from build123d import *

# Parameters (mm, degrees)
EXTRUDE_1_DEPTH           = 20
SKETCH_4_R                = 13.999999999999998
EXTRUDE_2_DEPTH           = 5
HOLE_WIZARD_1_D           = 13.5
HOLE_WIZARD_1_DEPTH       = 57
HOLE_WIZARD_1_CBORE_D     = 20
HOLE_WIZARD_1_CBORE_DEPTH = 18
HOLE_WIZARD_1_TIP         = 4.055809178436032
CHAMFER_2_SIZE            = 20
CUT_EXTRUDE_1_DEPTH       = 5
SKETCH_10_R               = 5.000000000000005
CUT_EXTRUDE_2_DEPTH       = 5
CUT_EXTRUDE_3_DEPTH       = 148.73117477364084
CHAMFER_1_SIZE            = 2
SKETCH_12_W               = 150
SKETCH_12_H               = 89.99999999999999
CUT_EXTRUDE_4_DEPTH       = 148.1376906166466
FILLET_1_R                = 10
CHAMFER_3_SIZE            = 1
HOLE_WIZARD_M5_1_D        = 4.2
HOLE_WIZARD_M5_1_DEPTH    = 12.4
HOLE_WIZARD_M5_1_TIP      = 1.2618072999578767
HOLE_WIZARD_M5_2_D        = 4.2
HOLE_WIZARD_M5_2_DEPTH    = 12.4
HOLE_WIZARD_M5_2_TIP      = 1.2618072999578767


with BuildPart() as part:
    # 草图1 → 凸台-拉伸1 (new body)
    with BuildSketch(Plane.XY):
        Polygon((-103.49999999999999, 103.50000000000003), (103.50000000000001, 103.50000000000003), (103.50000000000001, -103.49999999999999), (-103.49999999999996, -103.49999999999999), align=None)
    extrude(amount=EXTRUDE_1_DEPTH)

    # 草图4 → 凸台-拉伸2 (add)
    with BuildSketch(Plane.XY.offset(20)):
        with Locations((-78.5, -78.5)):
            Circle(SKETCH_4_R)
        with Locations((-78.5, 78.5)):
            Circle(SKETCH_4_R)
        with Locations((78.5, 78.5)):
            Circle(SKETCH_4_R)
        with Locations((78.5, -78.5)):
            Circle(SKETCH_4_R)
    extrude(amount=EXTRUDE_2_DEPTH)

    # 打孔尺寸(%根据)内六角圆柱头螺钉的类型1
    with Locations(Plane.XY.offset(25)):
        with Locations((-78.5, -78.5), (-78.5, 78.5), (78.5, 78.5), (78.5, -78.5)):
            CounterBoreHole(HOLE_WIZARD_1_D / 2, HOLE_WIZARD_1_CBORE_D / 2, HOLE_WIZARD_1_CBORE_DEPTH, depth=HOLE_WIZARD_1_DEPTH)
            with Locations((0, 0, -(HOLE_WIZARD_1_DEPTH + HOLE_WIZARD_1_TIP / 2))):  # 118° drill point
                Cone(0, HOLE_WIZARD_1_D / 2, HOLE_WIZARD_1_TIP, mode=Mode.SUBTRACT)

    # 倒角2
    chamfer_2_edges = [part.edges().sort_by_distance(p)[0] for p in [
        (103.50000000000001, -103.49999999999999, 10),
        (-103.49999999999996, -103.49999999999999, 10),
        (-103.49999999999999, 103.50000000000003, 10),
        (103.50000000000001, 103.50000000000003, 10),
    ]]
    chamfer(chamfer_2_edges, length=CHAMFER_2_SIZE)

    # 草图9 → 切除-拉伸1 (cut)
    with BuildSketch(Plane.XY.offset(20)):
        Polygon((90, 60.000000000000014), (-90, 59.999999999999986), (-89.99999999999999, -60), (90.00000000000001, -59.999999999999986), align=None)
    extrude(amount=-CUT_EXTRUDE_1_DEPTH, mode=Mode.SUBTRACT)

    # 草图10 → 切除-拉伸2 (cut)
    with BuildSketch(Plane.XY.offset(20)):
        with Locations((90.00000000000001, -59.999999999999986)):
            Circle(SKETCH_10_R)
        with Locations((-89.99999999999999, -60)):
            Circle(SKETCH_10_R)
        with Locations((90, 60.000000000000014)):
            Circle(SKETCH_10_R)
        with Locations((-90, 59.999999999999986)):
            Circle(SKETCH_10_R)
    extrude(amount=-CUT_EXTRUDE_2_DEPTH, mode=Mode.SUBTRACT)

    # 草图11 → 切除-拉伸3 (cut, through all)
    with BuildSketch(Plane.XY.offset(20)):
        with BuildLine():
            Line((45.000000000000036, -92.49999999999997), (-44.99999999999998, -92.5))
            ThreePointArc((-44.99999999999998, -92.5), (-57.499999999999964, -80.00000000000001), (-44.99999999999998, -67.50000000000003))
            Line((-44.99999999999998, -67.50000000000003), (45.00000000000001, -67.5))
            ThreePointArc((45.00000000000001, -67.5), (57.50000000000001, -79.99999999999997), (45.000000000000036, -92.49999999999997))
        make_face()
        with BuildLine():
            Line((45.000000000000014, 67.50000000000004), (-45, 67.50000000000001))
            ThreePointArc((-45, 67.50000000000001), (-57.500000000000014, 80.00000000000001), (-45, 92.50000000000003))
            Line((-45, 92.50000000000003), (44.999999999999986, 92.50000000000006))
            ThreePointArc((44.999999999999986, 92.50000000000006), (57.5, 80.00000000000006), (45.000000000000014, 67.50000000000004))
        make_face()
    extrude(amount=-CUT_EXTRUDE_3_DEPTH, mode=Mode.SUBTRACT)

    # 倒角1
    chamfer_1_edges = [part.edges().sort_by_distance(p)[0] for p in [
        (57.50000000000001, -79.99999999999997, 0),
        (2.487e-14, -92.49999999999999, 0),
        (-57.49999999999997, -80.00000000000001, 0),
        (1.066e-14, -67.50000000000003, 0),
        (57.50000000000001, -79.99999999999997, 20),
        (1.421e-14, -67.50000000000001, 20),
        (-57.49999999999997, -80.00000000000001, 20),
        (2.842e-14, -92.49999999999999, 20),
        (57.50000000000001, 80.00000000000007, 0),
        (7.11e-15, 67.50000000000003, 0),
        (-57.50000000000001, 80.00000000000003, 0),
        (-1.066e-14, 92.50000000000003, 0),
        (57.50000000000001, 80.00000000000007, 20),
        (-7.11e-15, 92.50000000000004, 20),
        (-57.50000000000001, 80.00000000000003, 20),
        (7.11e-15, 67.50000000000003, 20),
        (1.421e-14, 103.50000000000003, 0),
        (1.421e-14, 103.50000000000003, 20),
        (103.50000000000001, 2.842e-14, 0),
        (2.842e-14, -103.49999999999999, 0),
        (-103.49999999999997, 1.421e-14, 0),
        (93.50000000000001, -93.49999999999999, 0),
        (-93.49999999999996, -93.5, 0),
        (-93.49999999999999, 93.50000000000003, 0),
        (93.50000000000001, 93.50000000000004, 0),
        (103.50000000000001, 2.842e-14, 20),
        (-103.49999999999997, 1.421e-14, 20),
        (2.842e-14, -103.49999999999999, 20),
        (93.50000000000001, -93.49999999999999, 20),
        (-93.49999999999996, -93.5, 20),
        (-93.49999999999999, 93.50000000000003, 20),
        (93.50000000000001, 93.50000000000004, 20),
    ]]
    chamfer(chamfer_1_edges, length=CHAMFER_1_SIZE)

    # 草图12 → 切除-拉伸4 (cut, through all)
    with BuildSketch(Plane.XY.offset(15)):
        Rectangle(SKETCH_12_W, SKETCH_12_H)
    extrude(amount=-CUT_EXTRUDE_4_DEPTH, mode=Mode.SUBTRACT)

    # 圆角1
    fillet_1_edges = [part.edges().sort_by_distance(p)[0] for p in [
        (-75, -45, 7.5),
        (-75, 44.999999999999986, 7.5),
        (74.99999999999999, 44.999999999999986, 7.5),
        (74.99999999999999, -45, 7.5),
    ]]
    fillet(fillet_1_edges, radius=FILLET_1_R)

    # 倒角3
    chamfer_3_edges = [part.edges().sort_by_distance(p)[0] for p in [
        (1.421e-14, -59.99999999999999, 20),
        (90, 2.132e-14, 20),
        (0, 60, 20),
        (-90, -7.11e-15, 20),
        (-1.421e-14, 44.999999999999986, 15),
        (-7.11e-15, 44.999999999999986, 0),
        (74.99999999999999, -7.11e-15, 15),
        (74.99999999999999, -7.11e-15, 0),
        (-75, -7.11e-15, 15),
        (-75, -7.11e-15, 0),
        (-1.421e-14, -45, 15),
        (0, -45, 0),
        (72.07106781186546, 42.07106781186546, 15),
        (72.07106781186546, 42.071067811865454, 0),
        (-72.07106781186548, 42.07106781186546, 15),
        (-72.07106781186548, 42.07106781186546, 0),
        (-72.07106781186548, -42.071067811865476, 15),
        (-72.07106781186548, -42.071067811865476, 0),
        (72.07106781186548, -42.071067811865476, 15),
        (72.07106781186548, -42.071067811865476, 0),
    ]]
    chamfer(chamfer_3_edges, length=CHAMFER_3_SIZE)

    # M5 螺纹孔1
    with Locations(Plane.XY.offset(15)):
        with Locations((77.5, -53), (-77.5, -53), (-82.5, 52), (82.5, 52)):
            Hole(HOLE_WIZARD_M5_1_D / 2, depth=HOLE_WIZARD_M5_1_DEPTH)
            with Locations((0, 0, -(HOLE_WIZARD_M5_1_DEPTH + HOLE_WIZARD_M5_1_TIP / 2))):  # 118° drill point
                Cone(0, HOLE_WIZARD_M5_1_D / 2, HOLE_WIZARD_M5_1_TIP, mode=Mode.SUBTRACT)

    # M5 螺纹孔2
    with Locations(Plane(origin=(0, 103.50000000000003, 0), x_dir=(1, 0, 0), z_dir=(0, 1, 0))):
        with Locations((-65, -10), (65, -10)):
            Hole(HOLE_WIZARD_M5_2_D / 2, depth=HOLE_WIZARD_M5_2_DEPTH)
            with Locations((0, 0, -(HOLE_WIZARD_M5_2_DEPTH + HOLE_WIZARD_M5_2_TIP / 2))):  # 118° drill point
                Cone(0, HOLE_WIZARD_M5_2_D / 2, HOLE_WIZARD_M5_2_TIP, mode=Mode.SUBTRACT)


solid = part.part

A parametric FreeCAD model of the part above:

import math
import FreeCAD as App
import Part
import Sketcher
Q = App.Units.Quantity


def edges_at(feature, points):
    """Names of the edges that pass closest to the given points."""
    edges = feature.Shape.Edges
    near = lambda p: min(range(len(edges)), key=lambda i: edges[i].distToShape(Part.Vertex(*p))[0])
    return sorted({f"Edge{near(p) + 1}" for p in points})

doc = App.newDocument("Part")
body = doc.addObject("PartDesign::Body", "Body")

# Sketch on XY plane
sketch1 = body.newObject("Sketcher::SketchObject", "Sketch")
sketch1.AttachmentSupport = (doc.getObject("XY_Plane"), [""])
sketch1.MapMode = "FlatFace"
sketch1.addGeometry([
    Part.LineSegment(App.Vector(103.5, 103.5, 0), App.Vector(-103.5, 103.5, 0)),
    Part.LineSegment(App.Vector(-103.5, 103.5, 0), App.Vector(-103.5, -103.5, 0)),
    Part.LineSegment(App.Vector(-103.5, -103.5, 0), App.Vector(103.5, -103.5, 0)),
    Part.LineSegment(App.Vector(103.5, -103.5, 0), App.Vector(103.5, 103.5, 0)),
], False)
sketch1.addConstraint([
    Sketcher.Constraint("Coincident", 0, 2, 1, 1),
    Sketcher.Constraint("Coincident", 1, 2, 2, 1),
    Sketcher.Constraint("Coincident", 2, 2, 3, 1),
    Sketcher.Constraint("Coincident", 3, 2, 0, 1),
    Sketcher.Constraint("Horizontal", 0),
    Sketcher.Constraint("Vertical", 1),
    Sketcher.Constraint("Horizontal", 2),
    Sketcher.Constraint("Vertical", 3),
    Sketcher.Constraint("Symmetric", 0, 2, 2, 2, -1, 1),
    Sketcher.Constraint("Equal", 2, 1),
    Sketcher.Constraint("DistanceX", 0, 2, 0, 1, Q("207 mm")),
])
pad1 = body.newObject("PartDesign::Pad", "Pad")
pad1.Profile = sketch1
pad1.Length = 20

# Sketch on XY plane
sketch2 = body.newObject("Sketcher::SketchObject", "Sketch001")
sketch2.AttachmentSupport = (doc.getObject("XY_Plane"), [""])
sketch2.MapMode = "FlatFace"
sketch2.AttachmentOffset = App.Placement(App.Vector(0, 0, 20), App.Rotation())
sketch2.addGeometry([
    Part.Circle(App.Vector(-78.5, -78.5, 0), App.Vector(0, 0, 1), 14),
    Part.Circle(App.Vector(-78.5, 78.5, 0), App.Vector(0, 0, 1), 14),
    Part.Circle(App.Vector(78.5, 78.5, 0), App.Vector(0, 0, 1), 14),
    Part.Circle(App.Vector(78.5, -78.5, 0), App.Vector(0, 0, 1), 14),
], False)
sketch2.addConstraint([
    Sketcher.Constraint("Equal", 0, 1),
    Sketcher.Constraint("Equal", 1, 2),
    Sketcher.Constraint("Equal", 2, 3),
    Sketcher.Constraint("Symmetric", 0, 3, 2, 3, -1, 1),
    Sketcher.Constraint("Symmetric", 1, 3, 3, 3, -1, 1),
    Sketcher.Constraint("Symmetric", 1, 3, 2, 3, -2),
    Sketcher.Constraint("Diameter", 0, Q("28 mm")),
    Sketcher.Constraint("DistanceY", 0, 3, 1, 3, Q("157 mm")),
    Sketcher.Constraint("DistanceX", 1, 3, 2, 3, Q("157 mm")),
])
pad2 = body.newObject("PartDesign::Pad", "Pad001")
pad2.Profile = sketch2
pad2.Length = 5

# Sketch on XY plane
sketch3 = body.newObject("Sketcher::SketchObject", "Sketch002")
sketch3.AttachmentSupport = (doc.getObject("XY_Plane"), [""])
sketch3.MapMode = "FlatFace"
sketch3.AttachmentOffset = App.Placement(App.Vector(0, 0, 25), App.Rotation())
sketch3.addGeometry([
    Part.Circle(App.Vector(-78.5, -78.5, 0), App.Vector(0, 0, 1), 6.75),
    Part.Circle(App.Vector(-78.5, 78.5, 0), App.Vector(0, 0, 1), 6.75),
    Part.Circle(App.Vector(78.5, 78.5, 0), App.Vector(0, 0, 1), 6.75),
    Part.Circle(App.Vector(78.5, -78.5, 0), App.Vector(0, 0, 1), 6.75),
], False)
sketch3.addConstraint([
    Sketcher.Constraint("Equal", 0, 1),
    Sketcher.Constraint("Equal", 1, 2),
    Sketcher.Constraint("Equal", 2, 3),
    Sketcher.Constraint("Symmetric", 0, 3, 2, 3, -1, 1),
    Sketcher.Constraint("Symmetric", 1, 3, 3, 3, -1, 1),
    Sketcher.Constraint("Symmetric", 1, 3, 2, 3, -2),
    Sketcher.Constraint("Diameter", 0, Q("13.5 mm")),
    Sketcher.Constraint("DistanceY", 0, 3, 1, 3, Q("157 mm")),
    Sketcher.Constraint("DistanceX", 1, 3, 2, 3, Q("157 mm")),
])
doc.recompute()
hole = body.newObject("PartDesign::Hole", "Hole")
hole.Profile = sketch3
hole.ThreadType = "None"
hole.Diameter = 13.5
hole.DepthType = "Dimension"
hole.Depth = 57
hole.DrillPoint = "Angled"
hole.DrillPointAngle = 118
hole.HoleCutType = "Counterbore"
hole.HoleCutDiameter = 20
hole.HoleCutDepth = 18
doc.recompute()

chamfer = body.newObject("PartDesign::Chamfer", "Chamfer")
chamfer.Base = (hole, edges_at(hole, [
    (103.5, -103.5, 10),
    (-103.5, -103.5, 10),
    (-103.5, 103.5, 10),
    (103.5, 103.5, 10),
]))
chamfer.Size = 20

# Sketch on XY plane
sketch4 = body.newObject("Sketcher::SketchObject", "Sketch003")
sketch4.AttachmentSupport = (doc.getObject("XY_Plane"), [""])
sketch4.MapMode = "FlatFace"
sketch4.AttachmentOffset = App.Placement(App.Vector(0, 0, 20), App.Rotation())
sketch4.addGeometry([
    Part.LineSegment(App.Vector(90, 60, 0), App.Vector(-90, 60, 0)),
    Part.LineSegment(App.Vector(-90, 60, 0), App.Vector(-90, -60, 0)),
    Part.LineSegment(App.Vector(-90, -60, 0), App.Vector(90, -60, 0)),
    Part.LineSegment(App.Vector(90, -60, 0), App.Vector(90, 60, 0)),
], False)
sketch4.addConstraint([
    Sketcher.Constraint("Coincident", 0, 2, 1, 1),
    Sketcher.Constraint("Coincident", 1, 2, 2, 1),
    Sketcher.Constraint("Coincident", 2, 2, 3, 1),
    Sketcher.Constraint("Coincident", 3, 2, 0, 1),
    Sketcher.Constraint("Horizontal", 0),
    Sketcher.Constraint("Vertical", 1),
    Sketcher.Constraint("Horizontal", 2),
    Sketcher.Constraint("Vertical", 3),
    Sketcher.Constraint("Symmetric", 0, 2, 2, 2, -1, 1),
    Sketcher.Constraint("DistanceX", 0, 2, 0, 1, Q("180 mm")),
    Sketcher.Constraint("DistanceY", 1, 2, 1, 1, Q("120 mm")),
])
pocket1 = body.newObject("PartDesign::Pocket", "Pocket")
pocket1.Profile = sketch4
pocket1.Length = 5

# Sketch on XY plane
sketch5 = body.newObject("Sketcher::SketchObject", "Sketch004")
sketch5.AttachmentSupport = (doc.getObject("XY_Plane"), [""])
sketch5.MapMode = "FlatFace"
sketch5.AttachmentOffset = App.Placement(App.Vector(0, 0, 20), App.Rotation())
sketch5.addGeometry([
    Part.Circle(App.Vector(90, -60, 0), App.Vector(0, 0, 1), 5),
    Part.Circle(App.Vector(-90, -60, 0), App.Vector(0, 0, 1), 5),
    Part.Circle(App.Vector(90, 60, 0), App.Vector(0, 0, 1), 5),
    Part.Circle(App.Vector(-90, 60, 0), App.Vector(0, 0, 1), 5),
], False)
sketch5.addConstraint([
    Sketcher.Constraint("Equal", 0, 1),
    Sketcher.Constraint("Equal", 1, 2),
    Sketcher.Constraint("Equal", 2, 3),
    Sketcher.Constraint("Symmetric", 1, 3, 2, 3, -1, 1),
    Sketcher.Constraint("Symmetric", 0, 3, 3, 3, -1, 1),
    Sketcher.Constraint("Symmetric", 0, 3, 1, 3, -2),
    Sketcher.Constraint("Diameter", 0, Q("10 mm")),
    Sketcher.Constraint("DistanceX", -1, 1, 0, 3, Q("90 mm")),
    Sketcher.Constraint("DistanceY", 0, 3, -1, 1, Q("60 mm")),
])
pocket2 = body.newObject("PartDesign::Pocket", "Pocket001")
pocket2.Profile = sketch5
pocket2.Length = 5

# Sketch on XY plane
sketch6 = body.newObject("Sketcher::SketchObject", "Sketch005")
sketch6.AttachmentSupport = (doc.getObject("XY_Plane"), [""])
sketch6.MapMode = "FlatFace"
sketch6.AttachmentOffset = App.Placement(App.Vector(0, 0, 20), App.Rotation())
sketch6.addGeometry([
    Part.LineSegment(App.Vector(-45, -92.5, 0), App.Vector(45, -92.5, 0)),  # 0
    Part.ArcOfCircle(Part.Circle(App.Vector(45, -80, 0), App.Vector(0, 0, 1), 12.5), math.radians(-90), math.radians(90)),  # 1
    Part.LineSegment(App.Vector(45, -67.5, 0), App.Vector(-45, -67.5, 0)),  # 2
    Part.ArcOfCircle(Part.Circle(App.Vector(-45, -80, 0), App.Vector(0, 0, 1), 12.5), math.radians(90), math.radians(270)),  # 3
    Part.LineSegment(App.Vector(-45, 67.5, 0), App.Vector(45, 67.5, 0)),  # 4
    Part.ArcOfCircle(Part.Circle(App.Vector(45, 80, 0), App.Vector(0, 0, 1), 12.5), math.radians(-90), math.radians(90)),  # 5
    Part.LineSegment(App.Vector(45, 92.5, 0), App.Vector(-45, 92.5, 0)),  # 6
    Part.ArcOfCircle(Part.Circle(App.Vector(-45, 80, 0), App.Vector(0, 0, 1), 12.5), math.radians(90), math.radians(270)),  # 7
], False)
sketch6.addConstraint([
    Sketcher.Constraint("Tangent", 0, 2, 1, 1),
    Sketcher.Constraint("Tangent", 1, 2, 2, 1),
    Sketcher.Constraint("Tangent", 2, 2, 3, 1),
    Sketcher.Constraint("Tangent", 3, 2, 0, 1),
    Sketcher.Constraint("Tangent", 4, 2, 5, 1),
    Sketcher.Constraint("Tangent", 5, 2, 6, 1),
    Sketcher.Constraint("Tangent", 6, 2, 7, 1),
    Sketcher.Constraint("Tangent", 7, 2, 4, 1),
    Sketcher.Constraint("Horizontal", 0),
    Sketcher.Constraint("Horizontal", 2),
    Sketcher.Constraint("Horizontal", 4),
    Sketcher.Constraint("Horizontal", 6),
    Sketcher.Constraint("Equal", 3, 5),
    Sketcher.Constraint("Symmetric", 3, 3, 5, 3, -1, 1),
    Sketcher.Constraint("Vertical", 1, 3, 5, 3),
    Sketcher.Constraint("Vertical", 3, 3, 7, 3),
    Sketcher.Constraint("Radius", 1, Q("12.5 mm")),
    Sketcher.Constraint("DistanceX", 0, 1, 0, 2, Q("90 mm")),
    Sketcher.Constraint("DistanceY", 1, 3, -1, 1, Q("80 mm")),
])
pocket3 = body.newObject("PartDesign::Pocket", "Pocket002")
pocket3.Profile = sketch6
pocket3.Type = "ThroughAll"
doc.recompute()

chamfer2 = body.newObject("PartDesign::Chamfer", "Chamfer001")
chamfer2.Base = (pocket3, edges_at(pocket3, [
    (57.5, -80, 0),
    (0, -92.5, 0),
    (-57.5, -80, 0),
    (0, -67.5, 0),
    (57.5, -80, 20),
    (0, -67.5, 20),
    (-57.5, -80, 20),
    (0, -92.5, 20),
    (57.5, 80, 0),
    (0, 67.5, 0),
    (-57.5, 80, 0),
    (0, 92.5, 0),
    (57.5, 80, 20),
    (0, 92.5, 20),
    (-57.5, 80, 20),
    (0, 67.5, 20),
    (0, 103.5, 0),
    (0, 103.5, 20),
    (103.5, 0, 0),
    (0, -103.5, 0),
    (-103.5, 0, 0),
    (93.5, -93.5, 0),
    (-93.5, -93.5, 0),
    (-93.5, 93.5, 0),
    (93.5, 93.5, 0),
    (103.5, 0, 20),
    (-103.5, 0, 20),
    (0, -103.5, 20),
    (93.5, -93.5, 20),
    (-93.5, -93.5, 20),
    (-93.5, 93.5, 20),
    (93.5, 93.5, 20),
]))
chamfer2.Size = 2

# Sketch on XY plane
sketch7 = body.newObject("Sketcher::SketchObject", "Sketch006")
sketch7.AttachmentSupport = (doc.getObject("XY_Plane"), [""])
sketch7.MapMode = "FlatFace"
sketch7.AttachmentOffset = App.Placement(App.Vector(0, 0, 15), App.Rotation())
sketch7.addGeometry([
    Part.LineSegment(App.Vector(-75, 45, 0), App.Vector(-75, -45, 0)),
    Part.LineSegment(App.Vector(-75, -45, 0), App.Vector(75, -45, 0)),
    Part.LineSegment(App.Vector(75, -45, 0), App.Vector(75, 45, 0)),
    Part.LineSegment(App.Vector(75, 45, 0), App.Vector(-75, 45, 0)),
], False)
sketch7.addConstraint([
    Sketcher.Constraint("Coincident", 0, 2, 1, 1),
    Sketcher.Constraint("Coincident", 1, 2, 2, 1),
    Sketcher.Constraint("Coincident", 2, 2, 3, 1),
    Sketcher.Constraint("Coincident", 3, 2, 0, 1),
    Sketcher.Constraint("Vertical", 0),
    Sketcher.Constraint("Horizontal", 1),
    Sketcher.Constraint("Vertical", 2),
    Sketcher.Constraint("Horizontal", 3),
    Sketcher.Constraint("Symmetric", 0, 2, 2, 2, -1, 1),
    Sketcher.Constraint("DistanceX", 1, 1, 1, 2, Q("150 mm")),
    Sketcher.Constraint("DistanceY", 0, 2, 0, 1, Q("90 mm")),
])
pocket4 = body.newObject("PartDesign::Pocket", "Pocket003")
pocket4.Profile = sketch7
pocket4.Type = "ThroughAll"
doc.recompute()

fillet = body.newObject("PartDesign::Fillet", "Fillet")
fillet.Base = (pocket4, edges_at(pocket4, [
    (-75, -45, 7.5),
    (-75, 45, 7.5),
    (75, 45, 7.5),
    (75, -45, 7.5),
]))
fillet.Radius = 10
doc.recompute()

chamfer3 = body.newObject("PartDesign::Chamfer", "Chamfer002")
chamfer3.Base = (fillet, edges_at(fillet, [
    (0, -60, 20),
    (90, 0, 20),
    (0, 60, 20),
    (-90, 0, 20),
    (0, 45, 15),
    (0, 45, 0),
    (75, 0, 15),
    (75, 0, 0),
    (-75, 0, 15),
    (-75, 0, 0),
    (0, -45, 15),
    (0, -45, 0),
    (72.071, 42.071, 15),
    (72.071, 42.071, 0),
    (-72.071, 42.071, 15),
    (-72.071, 42.071, 0),
    (-72.071, -42.071, 15),
    (-72.071, -42.071, 0),
    (72.071, -42.071, 15),
    (72.071, -42.071, 0),
]))
chamfer3.Size = 1

# Sketch on XY plane
sketch8 = body.newObject("Sketcher::SketchObject", "Sketch007")
sketch8.AttachmentSupport = (doc.getObject("XY_Plane"), [""])
sketch8.MapMode = "FlatFace"
sketch8.AttachmentOffset = App.Placement(App.Vector(0, 0, 15), App.Rotation())
sketch8.addGeometry([
    Part.Circle(App.Vector(77.5, -53, 0), App.Vector(0, 0, 1), 2.1),
    Part.Circle(App.Vector(-77.5, -53, 0), App.Vector(0, 0, 1), 2.1),
    Part.Circle(App.Vector(-82.5, 52, 0), App.Vector(0, 0, 1), 2.1),
    Part.Circle(App.Vector(82.5, 52, 0), App.Vector(0, 0, 1), 2.1),
], False)
sketch8.addConstraint([
    Sketcher.Constraint("Equal", 0, 1),
    Sketcher.Constraint("Equal", 1, 2),
    Sketcher.Constraint("Equal", 2, 3),
    Sketcher.Constraint("Symmetric", 0, 3, 1, 3, -2),
    Sketcher.Constraint("Symmetric", 2, 3, 3, 3, -2),
    Sketcher.Constraint("Diameter", 0, Q("4.2 mm")),
    Sketcher.Constraint("DistanceY", 0, 3, -1, 1, Q("53 mm")),
    Sketcher.Constraint("DistanceY", -1, 1, 2, 3, Q("52 mm")),
    Sketcher.Constraint("DistanceX", 1, 3, 0, 3, Q("155 mm")),
    Sketcher.Constraint("DistanceX", 2, 3, 1, 3, Q("5 mm")),
])
doc.recompute()
hole2 = body.newObject("PartDesign::Hole", "Hole001")
hole2.Profile = sketch8
hole2.ThreadType = "None"
hole2.Diameter = 4.2
hole2.DepthType = "Dimension"
hole2.Depth = 12.4
hole2.DrillPoint = "Angled"
hole2.DrillPointAngle = 118

# Sketch on XZ plane
sketch9 = body.newObject("Sketcher::SketchObject", "Sketch008")
sketch9.AttachmentSupport = (doc.getObject("XZ_Plane"), [""])
sketch9.MapMode = "FlatFace"
sketch9.AttachmentOffset = App.Placement(App.Vector(0, 0, -103.5), App.Rotation())
sketch9.addGeometry([
    Part.Circle(App.Vector(-65, 10, 0), App.Vector(0, 0, 1), 2.1),
    Part.Circle(App.Vector(65, 10, 0), App.Vector(0, 0, 1), 2.1),
], False)
sketch9.addConstraint([
    Sketcher.Constraint("Equal", 0, 1),
    Sketcher.Constraint("Symmetric", 0, 3, 1, 3, -2),
    Sketcher.Constraint("Diameter", 0, Q("4.2 mm")),
    Sketcher.Constraint("DistanceX", 0, 3, -1, 1, Q("65 mm")),
    Sketcher.Constraint("DistanceY", -1, 1, 0, 3, Q("10 mm")),
])
doc.recompute()
hole3 = body.newObject("PartDesign::Hole", "Hole002")
hole3.Profile = sketch9
hole3.ThreadType = "None"
hole3.Diameter = 4.2
hole3.DepthType = "Dimension"
hole3.Depth = 12.4
hole3.DrillPoint = "Angled"
hole3.DrillPointAngle = 118
hole3.Reversed = True

doc.recompute()
